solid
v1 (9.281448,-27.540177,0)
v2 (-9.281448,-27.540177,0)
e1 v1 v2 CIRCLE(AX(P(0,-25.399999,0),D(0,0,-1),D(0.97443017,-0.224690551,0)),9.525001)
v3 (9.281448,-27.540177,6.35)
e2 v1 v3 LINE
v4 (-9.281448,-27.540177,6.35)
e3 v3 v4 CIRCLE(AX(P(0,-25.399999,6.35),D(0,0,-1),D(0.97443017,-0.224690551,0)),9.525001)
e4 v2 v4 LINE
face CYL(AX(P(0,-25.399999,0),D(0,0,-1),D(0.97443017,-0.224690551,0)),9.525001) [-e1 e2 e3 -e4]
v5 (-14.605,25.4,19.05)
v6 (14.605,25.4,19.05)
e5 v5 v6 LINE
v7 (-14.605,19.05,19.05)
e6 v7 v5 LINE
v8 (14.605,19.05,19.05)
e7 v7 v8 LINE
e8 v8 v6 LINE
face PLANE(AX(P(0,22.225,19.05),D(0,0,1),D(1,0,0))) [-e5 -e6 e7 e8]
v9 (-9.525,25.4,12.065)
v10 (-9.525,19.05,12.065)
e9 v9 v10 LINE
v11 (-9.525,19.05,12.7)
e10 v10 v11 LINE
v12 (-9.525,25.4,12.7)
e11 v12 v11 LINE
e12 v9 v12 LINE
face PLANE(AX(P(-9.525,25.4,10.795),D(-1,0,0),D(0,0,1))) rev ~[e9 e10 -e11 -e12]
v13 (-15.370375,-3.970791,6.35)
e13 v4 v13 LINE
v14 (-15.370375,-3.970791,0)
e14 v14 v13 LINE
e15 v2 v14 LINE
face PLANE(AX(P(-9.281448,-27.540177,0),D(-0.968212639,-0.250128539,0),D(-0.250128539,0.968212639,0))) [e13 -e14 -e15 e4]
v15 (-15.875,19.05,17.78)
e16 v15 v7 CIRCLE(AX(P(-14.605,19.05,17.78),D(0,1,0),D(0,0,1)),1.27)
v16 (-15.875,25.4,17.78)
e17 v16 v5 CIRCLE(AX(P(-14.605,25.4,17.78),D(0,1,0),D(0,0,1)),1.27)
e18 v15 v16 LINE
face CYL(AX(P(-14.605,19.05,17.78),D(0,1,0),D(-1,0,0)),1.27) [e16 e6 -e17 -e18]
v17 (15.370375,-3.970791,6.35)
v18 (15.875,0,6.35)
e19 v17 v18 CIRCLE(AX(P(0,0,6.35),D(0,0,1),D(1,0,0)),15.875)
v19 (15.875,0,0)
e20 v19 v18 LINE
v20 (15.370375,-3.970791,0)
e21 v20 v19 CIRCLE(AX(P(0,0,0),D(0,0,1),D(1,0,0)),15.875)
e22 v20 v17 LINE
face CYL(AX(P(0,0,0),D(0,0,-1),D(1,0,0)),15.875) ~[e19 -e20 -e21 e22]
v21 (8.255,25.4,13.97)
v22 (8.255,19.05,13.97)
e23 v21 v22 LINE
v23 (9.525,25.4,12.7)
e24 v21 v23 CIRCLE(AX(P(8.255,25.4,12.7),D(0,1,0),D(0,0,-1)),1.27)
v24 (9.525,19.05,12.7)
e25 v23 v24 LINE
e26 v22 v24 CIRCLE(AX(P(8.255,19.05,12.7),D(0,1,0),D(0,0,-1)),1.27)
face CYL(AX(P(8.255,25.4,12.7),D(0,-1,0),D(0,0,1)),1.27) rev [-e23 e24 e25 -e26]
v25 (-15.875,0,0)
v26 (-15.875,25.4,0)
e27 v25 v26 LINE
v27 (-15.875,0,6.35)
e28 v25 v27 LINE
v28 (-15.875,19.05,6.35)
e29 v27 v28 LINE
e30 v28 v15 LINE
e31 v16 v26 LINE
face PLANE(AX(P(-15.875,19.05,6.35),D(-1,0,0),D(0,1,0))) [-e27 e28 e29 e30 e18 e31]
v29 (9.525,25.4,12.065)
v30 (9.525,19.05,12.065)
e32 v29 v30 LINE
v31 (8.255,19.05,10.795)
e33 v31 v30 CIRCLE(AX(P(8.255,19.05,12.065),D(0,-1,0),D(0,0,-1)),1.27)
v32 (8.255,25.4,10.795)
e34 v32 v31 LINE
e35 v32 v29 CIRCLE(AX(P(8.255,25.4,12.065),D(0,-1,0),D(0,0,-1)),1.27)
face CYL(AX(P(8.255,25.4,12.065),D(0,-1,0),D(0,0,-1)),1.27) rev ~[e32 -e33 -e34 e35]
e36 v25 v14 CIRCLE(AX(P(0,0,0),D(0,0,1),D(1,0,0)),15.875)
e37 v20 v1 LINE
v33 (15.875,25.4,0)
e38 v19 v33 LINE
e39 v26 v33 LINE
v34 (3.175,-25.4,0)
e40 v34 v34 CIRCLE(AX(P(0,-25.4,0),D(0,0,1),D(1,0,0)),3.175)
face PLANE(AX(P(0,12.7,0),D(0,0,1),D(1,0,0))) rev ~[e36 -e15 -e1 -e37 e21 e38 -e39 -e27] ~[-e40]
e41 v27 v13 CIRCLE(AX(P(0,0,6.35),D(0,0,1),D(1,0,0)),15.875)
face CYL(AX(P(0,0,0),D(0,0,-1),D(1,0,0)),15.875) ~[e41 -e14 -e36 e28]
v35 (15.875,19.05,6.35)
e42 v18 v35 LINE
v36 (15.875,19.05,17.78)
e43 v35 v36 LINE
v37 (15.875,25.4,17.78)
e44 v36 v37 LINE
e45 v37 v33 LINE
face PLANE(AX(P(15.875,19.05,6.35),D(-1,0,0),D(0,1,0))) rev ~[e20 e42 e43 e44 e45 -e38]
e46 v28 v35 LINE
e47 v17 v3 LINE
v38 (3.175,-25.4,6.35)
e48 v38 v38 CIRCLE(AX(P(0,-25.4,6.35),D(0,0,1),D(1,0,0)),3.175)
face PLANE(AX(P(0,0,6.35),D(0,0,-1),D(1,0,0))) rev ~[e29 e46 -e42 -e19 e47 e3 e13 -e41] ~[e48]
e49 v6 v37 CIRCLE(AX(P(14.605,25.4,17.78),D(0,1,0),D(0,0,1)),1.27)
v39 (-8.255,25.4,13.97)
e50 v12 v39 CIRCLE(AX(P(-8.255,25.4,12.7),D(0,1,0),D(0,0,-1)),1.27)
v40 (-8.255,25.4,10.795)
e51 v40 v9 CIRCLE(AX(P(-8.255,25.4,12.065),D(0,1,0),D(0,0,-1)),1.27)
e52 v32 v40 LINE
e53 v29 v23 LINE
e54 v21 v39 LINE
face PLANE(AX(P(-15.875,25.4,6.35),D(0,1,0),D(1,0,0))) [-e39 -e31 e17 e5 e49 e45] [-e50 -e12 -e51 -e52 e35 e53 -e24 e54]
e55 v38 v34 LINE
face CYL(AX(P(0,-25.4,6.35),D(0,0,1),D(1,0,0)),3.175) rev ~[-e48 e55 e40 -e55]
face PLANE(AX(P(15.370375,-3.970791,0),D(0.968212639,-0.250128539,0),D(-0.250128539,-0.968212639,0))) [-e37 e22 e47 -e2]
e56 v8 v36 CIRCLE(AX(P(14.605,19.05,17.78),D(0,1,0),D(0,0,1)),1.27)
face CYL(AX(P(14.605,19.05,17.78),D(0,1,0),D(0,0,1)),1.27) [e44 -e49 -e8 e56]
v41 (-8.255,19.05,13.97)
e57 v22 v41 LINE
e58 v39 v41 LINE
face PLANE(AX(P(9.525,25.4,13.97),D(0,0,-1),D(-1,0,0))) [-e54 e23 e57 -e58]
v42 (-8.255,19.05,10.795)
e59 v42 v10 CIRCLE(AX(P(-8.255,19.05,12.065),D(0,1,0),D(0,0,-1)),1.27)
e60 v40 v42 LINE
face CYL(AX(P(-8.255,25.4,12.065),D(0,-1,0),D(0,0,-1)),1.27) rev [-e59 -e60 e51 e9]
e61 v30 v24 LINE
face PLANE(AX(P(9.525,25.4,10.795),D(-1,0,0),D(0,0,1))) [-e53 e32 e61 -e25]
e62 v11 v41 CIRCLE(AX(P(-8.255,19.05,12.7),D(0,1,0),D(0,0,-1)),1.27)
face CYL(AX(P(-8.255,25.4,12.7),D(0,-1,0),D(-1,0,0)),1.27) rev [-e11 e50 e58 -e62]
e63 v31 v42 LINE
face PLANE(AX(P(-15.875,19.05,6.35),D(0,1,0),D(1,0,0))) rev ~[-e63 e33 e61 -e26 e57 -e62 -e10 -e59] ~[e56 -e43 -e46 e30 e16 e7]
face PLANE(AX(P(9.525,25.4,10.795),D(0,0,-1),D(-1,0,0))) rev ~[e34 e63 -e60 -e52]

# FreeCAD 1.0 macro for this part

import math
import FreeCAD as App
import Part
import Sketcher
from FreeCAD import Vector
Q = App.Units.Quantity


def edges_at(feature, points):
    """Names of the edges that pass closest to the given points."""
    edges = feature.Shape.Edges
    near = lambda p: min(range(len(edges)), key=lambda i: edges[i].distToShape(Part.Vertex(*p))[0])
    return sorted({f"Edge{near(p) + 1}" for p in points})


def add_polygon(sketch, points):
    """Adds a closed chain of lines whose ends are joined by coincident constraints."""
    first, n = sketch.GeometryCount, len(points)
    for a, b in zip(points, points[1:] + points[:1]):
        sketch.addGeometry(Part.LineSegment(App.Vector(*a, 0), App.Vector(*b, 0)), False)
    for i in range(n):
        sketch.addConstraint(Sketcher.Constraint("Coincident", first + i, 2, first + (i + 1) % n, 1))

doc = App.newDocument("Part")
body = doc.addObject("PartDesign::Body", "Body")

sketch1 = body.newObject("Sketcher::SketchObject", "Sketch")
sketch1.AttachmentSupport = (doc.getObject("XY_Plane"), [""])
sketch1.MapMode = "FlatFace"
sketch1.addGeometry([
    Part.Circle(Vector(0, 0, 0), Vector(0, 0, 1), 16),
    Part.Circle(Vector(0, 0, 0), Vector(0, 0, 1), 13),
], False)
sketch1.addConstraint([
    Sketcher.Constraint("Coincident", 0, 3, -1, 1),
    Sketcher.Constraint("Coincident", 1, 3, -1, 1),
    Sketcher.Constraint("Diameter", 1, Q("1 in")),
    Sketcher.Constraint("Diameter", 0, Q("1.25 in")),
])
pad1 = body.newObject("PartDesign::Pad", "Pad")
pad1.Profile = sketch1
pad1.Length = Q("0.25 in")

sketch2 = body.newObject("Sketcher::SketchObject", "Sketch001")
sketch2.AttachmentSupport = (doc.getObject("XY_Plane"), [""])
sketch2.MapMode = "FlatFace"
add_polygon(sketch2, [(-16, 25), (-16, 0), (16, 0), (16, 25)])
sketch2.addConstraint([
    Sketcher.Constraint("Vertical", 0),
    Sketcher.Constraint("Horizontal", 1),
    Sketcher.Constraint("Vertical", 2),
    Sketcher.Constraint("Horizontal", 3),
    Sketcher.Constraint("Symmetric", 0, 2, 1, 2, -1, 1),
    Sketcher.Constraint("DistanceY", 0, 2, 0, 1, Q("1 in")),
    Sketcher.Constraint("DistanceX", 1, 1, 1, 2, Q("1.25 in")),
])
pad2 = body.newObject("PartDesign::Pad", "Pad001")
pad2.Profile = sketch2
pad2.Length = Q("0.25 in")

sketch3 = body.newObject("Sketcher::SketchObject", "Sketch002")
sketch3.AttachmentSupport = (doc.getObject("XY_Plane"), [""])
sketch3.MapMode = "FlatFace"
sketch3.AttachmentOffset = App.Placement(Vector(0, 0, 0.25 * 25.4), App.Rotation())
add_polygon(sketch3, [(-16, 25), (-16, 19), (16, 19), (16, 25)])
sketch3.addConstraint([
    Sketcher.Constraint("Vertical", 0),
    Sketcher.Constraint("Horizontal", 1),
    Sketcher.Constraint("Vertical", 2),
    Sketcher.Constraint("Horizontal", 3),
    Sketcher.Constraint("DistanceY", -1, 1, 2, 2, Q("1 in")),
    Sketcher.Constraint("DistanceX", 1, 1, 1, 2, Q("1.25 in")),
    Sketcher.Constraint("DistanceY", 0, 2, 0, 1, Q("0.25 in")),
    Sketcher.Constraint("DistanceX", 0, 2, -1, 1, Q("0.625 in")),
])
pad3 = body.newObject("PartDesign::Pad", "Pad002")
pad3.Profile = sketch3
pad3.Length = Q("0.5 in")

sketch4 = body.newObject("Sketcher::SketchObject", "Sketch003")
sketch4.AttachmentSupport = (doc.getObject("XZ_Plane"), [""])
sketch4.MapMode = "FlatFace"
sketch4.AttachmentOffset = App.Placement(Vector(0, 0, -1 * 25.4), App.Rotation())
add_polygon(sketch4, [(9.5, 14), (9.5, 10.8), (-9.5, 10.8), (-9.5, 14)])
sketch4.addConstraint([
    Sketcher.Constraint("Vertical", 0),
    Sketcher.Constraint("Horizontal", 1),
    Sketcher.Constraint("Vertical", 2),
    Sketcher.Constraint("Horizontal", 3),
    Sketcher.Constraint("DistanceX", 1, 2, 1, 1, Q("0.75 in")),
    Sketcher.Constraint("DistanceY", 0, 2, 0, 1, Q("0.125 in")),
    Sketcher.Constraint("DistanceY", -1, 1, 2, 2, Q("0.55 in")),
    Sketcher.Constraint("DistanceX", -1, 1, 0, 2, Q("0.375 in")),
])
pocket1 = body.newObject("PartDesign::Pocket", "Pocket")
pocket1.Profile = sketch4
pocket1.Type = "ThroughAll"
pocket1.Reversed = True
doc.recompute()

fillet = body.newObject("PartDesign::Fillet", "Fillet")
fillet.Base = (pocket1, edges_at(pocket1, [
    (-9.525, 22.225, 13.97),
    (9.525, 22.225, 13.97),
    (9.525, 22.225, 10.795),
    (-9.525, 22.225, 10.795),
    (15.875, 22.225, 19.05),
    (-15.875, 22.225, 19.05),
]))
fillet.Radius = Q("0.05 in")

sketch5 = body.newObject("Sketcher::SketchObject", "Sketch004")
sketch5.AttachmentSupport = (doc.getObject("XY_Plane"), [""])
sketch5.MapMode = "FlatFace"
sketch5.addGeometry(Part.Circle(Vector(0, 0, 0), Vector(0, 0, 1), 13), False)
sketch5.addConstraint([
    Sketcher.Constraint("Coincident", 0, 3, -1, 1),
    Sketcher.Constraint("Diameter", 0, Q("1 in")),
])
pad4 = body.newObject("PartDesign::Pad", "Pad003")
pad4.Profile = sketch5
pad4.Length = Q("0.25 in")

sketch6 = body.newObject("Sketcher::SketchObject", "Sketch005")
sketch6.AttachmentSupport = (doc.getObject("XY_Plane"), [""])
sketch6.MapMode = "FlatFace"
sketch6.addGeometry([
    Part.ArcOfCircle(Part.Circle(Vector(0, 0, 0), Vector(0, 0, 1), 16), math.radians(-166), math.radians(-90)),
    Part.ArcOfCircle(Part.Circle(Vector(0, 0, 0), Vector(0, 0, 1), 16), math.radians(-90), math.radians(-14)),
    Part.LineSegment(Vector(15, -4, 0), Vector(9, -28, 0)),
    Part.ArcOfCircle(Part.Circle(Vector(0, -25, 0), Vector(0, 0, 1), 10), math.radians(-167), math.radians(-13)),
    Part.LineSegment(Vector(-9, -28, 0), Vector(-15, -4, 0)),
], False)
sketch6.addConstraint([
    Sketcher.Constraint("Tangent", 0, 2, 1, 1),
    Sketcher.Constraint("Tangent", 1, 2, 2, 1),
    Sketcher.Constraint("Coincident", 2, 2, 3, 2),
    Sketcher.Constraint("Coincident", 3, 1, 4, 1),
    Sketcher.Constraint("Tangent", 4, 2, 0, 1),
    Sketcher.Constraint("Coincident", 0, 3, -1, 1),
    Sketcher.Constraint("Equal", 0, 1),
    Sketcher.Constraint("Symmetric", 2, 2, 3, 1, -2),
    Sketcher.Constraint("PointOnObject", 0, 2, -2),
    Sketcher.Constraint("DistanceY", 3, 3, -1, 1, Q("1 in")),
    Sketcher.Constraint("Radius", 0, Q("0.6249999 in")),
    Sketcher.Constraint("Radius", 3, Q("0.375 in")),
    Sketcher.Constraint("Distance", 2, 24.343192),
])
pad5 = body.newObject("PartDesign::Pad", "Pad004")
pad5.Profile = sketch6
pad5.Length = Q("0.25 in")

sketch7 = body.newObject("Sketcher::SketchObject", "Sketch006")
sketch7.AttachmentSupport = (doc.getObject("XY_Plane"), [""])
sketch7.MapMode = "FlatFace"
sketch7.AttachmentOffset = App.Placement(Vector(0, 0, 0.25 * 25.4), App.Rotation())
sketch7.addGeometry(Part.Circle(Vector(0, -25.4, 0), Vector(0, 0, 1), 3.2), False)
sketch7.addConstraint([
    Sketcher.Constraint("PointOnObject", 0, 3, -2),
    Sketcher.Constraint("Diameter", 0, Q("0.25 in")),
    Sketcher.Constraint("DistanceY", 0, 3, -1, 1, Q("1 in")),
])
pocket2 = body.newObject("PartDesign::Pocket", "Pocket001")
pocket2.Profile = sketch7
pocket2.Type = "ThroughAll"

doc.recompute()
